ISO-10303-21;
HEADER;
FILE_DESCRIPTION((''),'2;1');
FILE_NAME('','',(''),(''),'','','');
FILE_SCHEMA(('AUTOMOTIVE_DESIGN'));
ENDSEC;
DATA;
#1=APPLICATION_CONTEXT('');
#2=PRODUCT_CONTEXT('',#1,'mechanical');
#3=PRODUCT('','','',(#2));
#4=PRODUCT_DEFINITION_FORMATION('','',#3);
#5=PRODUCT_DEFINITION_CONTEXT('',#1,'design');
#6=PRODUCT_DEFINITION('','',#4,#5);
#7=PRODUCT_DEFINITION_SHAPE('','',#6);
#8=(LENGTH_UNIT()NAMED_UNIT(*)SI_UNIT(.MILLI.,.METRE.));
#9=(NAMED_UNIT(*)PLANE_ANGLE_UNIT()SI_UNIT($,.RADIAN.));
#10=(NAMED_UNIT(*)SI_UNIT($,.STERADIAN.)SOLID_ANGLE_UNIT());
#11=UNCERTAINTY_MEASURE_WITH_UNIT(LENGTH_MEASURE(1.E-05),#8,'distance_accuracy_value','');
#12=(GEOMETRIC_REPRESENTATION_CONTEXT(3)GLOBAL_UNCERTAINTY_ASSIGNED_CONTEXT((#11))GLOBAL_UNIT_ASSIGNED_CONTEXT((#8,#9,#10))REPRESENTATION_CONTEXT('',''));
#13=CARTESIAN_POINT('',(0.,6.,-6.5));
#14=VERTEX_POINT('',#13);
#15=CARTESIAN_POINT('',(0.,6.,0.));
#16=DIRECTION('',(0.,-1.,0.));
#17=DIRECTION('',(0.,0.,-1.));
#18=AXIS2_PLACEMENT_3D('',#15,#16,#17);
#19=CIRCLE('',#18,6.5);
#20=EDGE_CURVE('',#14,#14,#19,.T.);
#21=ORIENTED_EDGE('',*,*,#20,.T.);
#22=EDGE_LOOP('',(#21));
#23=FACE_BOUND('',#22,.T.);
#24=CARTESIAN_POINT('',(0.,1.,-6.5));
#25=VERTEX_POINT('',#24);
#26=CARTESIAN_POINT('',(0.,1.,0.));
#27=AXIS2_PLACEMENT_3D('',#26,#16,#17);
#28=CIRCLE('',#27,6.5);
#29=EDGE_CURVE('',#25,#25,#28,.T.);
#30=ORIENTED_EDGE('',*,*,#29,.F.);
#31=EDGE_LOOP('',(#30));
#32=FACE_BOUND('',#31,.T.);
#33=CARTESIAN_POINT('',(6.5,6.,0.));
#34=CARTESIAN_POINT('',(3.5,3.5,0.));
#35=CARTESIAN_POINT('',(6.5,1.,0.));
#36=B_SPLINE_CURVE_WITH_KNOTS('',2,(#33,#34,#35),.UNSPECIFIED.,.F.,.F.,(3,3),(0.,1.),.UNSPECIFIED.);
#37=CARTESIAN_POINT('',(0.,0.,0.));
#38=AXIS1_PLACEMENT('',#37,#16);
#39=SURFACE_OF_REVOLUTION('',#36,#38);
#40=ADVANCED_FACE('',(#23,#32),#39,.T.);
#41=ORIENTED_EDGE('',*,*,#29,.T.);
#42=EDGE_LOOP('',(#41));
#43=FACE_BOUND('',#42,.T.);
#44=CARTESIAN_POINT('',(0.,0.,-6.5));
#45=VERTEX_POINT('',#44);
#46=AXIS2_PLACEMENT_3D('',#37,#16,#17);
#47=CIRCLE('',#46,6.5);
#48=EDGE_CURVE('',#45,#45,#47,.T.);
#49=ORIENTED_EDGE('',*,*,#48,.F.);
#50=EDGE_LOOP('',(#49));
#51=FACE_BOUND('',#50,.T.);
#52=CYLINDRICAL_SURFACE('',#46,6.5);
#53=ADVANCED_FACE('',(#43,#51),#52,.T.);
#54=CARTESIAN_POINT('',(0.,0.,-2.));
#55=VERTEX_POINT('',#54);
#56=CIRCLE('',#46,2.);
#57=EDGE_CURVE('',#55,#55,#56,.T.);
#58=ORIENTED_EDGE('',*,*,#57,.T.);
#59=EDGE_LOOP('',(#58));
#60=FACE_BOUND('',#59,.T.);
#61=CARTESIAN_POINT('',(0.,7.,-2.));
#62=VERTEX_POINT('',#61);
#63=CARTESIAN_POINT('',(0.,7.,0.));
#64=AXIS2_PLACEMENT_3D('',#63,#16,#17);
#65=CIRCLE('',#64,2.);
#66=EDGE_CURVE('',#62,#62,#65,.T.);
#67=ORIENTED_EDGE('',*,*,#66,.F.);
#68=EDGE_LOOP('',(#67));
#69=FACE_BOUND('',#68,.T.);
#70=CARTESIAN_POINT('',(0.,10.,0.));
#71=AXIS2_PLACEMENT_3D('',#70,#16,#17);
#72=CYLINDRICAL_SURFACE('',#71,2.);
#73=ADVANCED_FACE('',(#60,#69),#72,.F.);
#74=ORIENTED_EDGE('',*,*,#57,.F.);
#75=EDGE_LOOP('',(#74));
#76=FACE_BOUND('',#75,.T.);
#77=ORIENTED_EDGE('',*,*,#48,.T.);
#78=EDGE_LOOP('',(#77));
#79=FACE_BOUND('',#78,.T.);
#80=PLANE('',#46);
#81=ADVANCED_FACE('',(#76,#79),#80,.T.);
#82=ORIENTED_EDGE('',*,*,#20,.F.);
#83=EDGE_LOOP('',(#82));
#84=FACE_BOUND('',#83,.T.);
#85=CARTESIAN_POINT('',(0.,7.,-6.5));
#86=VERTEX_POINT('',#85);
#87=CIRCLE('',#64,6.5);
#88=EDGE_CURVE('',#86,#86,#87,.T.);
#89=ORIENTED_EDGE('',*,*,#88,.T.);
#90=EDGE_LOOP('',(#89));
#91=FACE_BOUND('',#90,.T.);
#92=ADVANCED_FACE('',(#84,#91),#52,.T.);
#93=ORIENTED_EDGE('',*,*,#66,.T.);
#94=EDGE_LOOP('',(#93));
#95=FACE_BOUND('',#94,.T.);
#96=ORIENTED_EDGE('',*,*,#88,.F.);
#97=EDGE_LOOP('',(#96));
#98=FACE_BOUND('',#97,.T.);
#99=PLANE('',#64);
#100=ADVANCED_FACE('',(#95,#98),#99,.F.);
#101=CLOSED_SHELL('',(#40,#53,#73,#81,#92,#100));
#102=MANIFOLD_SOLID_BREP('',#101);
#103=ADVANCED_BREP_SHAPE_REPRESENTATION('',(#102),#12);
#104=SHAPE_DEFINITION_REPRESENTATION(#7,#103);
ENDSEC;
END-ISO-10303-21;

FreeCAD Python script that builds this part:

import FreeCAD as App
import Part
import Sketcher

V = App.Vector
Q = App.Units.Quantity

doc = App.newDocument("Part")
body = doc.addObject("PartDesign::Body", "Body")

# Sketch on XY plane
sketch1 = body.newObject("Sketcher::SketchObject", "Sketch")
sketch1.AttachmentSupport = (doc.getObject("XY_Plane"), [""])
sketch1.MapMode = "FlatFace"
sketch1.addGeometry([
    Part.BSplineCurve([V(6.5, 6, 0), V(3.5, 3.5, 0), V(6.5, 1, 0)], [3, 3], [0, 1], False, 2, [1, 1, 1], False),  # 0
    Part.LineSegment(V(6.5, 6, 0), V(6.5, 7, 0)),  # 1
    Part.LineSegment(V(6.5, 7, 0), V(0, 7, 0)),  # 2
    Part.LineSegment(V(0, 7, 0), V(0, 0, 0)),  # 3
    Part.LineSegment(V(0, 0, 0), V(6.5, 0, 0)),  # 4
    Part.LineSegment(V(6.5, 0, 0), V(6.5, 1, 0)),  # 5
], False)
sketch1.addConstraint([
    Sketcher.Constraint("Block", 0),
    Sketcher.Constraint("Coincident", 0, 1, 1, 1),
    Sketcher.Constraint("Coincident", 1, 2, 2, 1),
    Sketcher.Constraint("Coincident", 2, 2, 3, 1),
    Sketcher.Constraint("Coincident", 3, 2, 4, 1),
    Sketcher.Constraint("Coincident", 4, 2, 5, 1),
    Sketcher.Constraint("Coincident", 5, 2, 0, 2),
    Sketcher.Constraint("Vertical", 1),
    Sketcher.Constraint("Horizontal", 2),
    Sketcher.Constraint("Vertical", 3),
    Sketcher.Constraint("Horizontal", 4),
    Sketcher.Constraint("Vertical", 5),
    Sketcher.Constraint("Coincident", 3, 2, -1, 1),
    Sketcher.Constraint("Equal", 1, 5),
])
revolution = body.newObject("PartDesign::Revolution", "Revolution")
revolution.Profile = sketch1
revolution.ReferenceAxis = (sketch1, ["V_Axis"])
revolution.Angle = 360

# Sketch on XZ plane
sketch2 = body.newObject("Sketcher::SketchObject", "Sketch001")
sketch2.AttachmentSupport = (doc.getObject("XZ_Plane"), [""])
sketch2.MapMode = "FlatFace"
sketch2.addGeometry(Part.Circle(V(0, 0, 0), V(0, 0, 1), 2), False)
sketch2.addConstraint([
    Sketcher.Constraint("Coincident", 0, 3, -1, 1),
    Sketcher.Constraint("Diameter", 0, Q("4 mm")),
])
pocket1 = body.newObject("PartDesign::Pocket", "Pocket")
pocket1.Profile = sketch2
pocket1.Length = 10

doc.recompute()
